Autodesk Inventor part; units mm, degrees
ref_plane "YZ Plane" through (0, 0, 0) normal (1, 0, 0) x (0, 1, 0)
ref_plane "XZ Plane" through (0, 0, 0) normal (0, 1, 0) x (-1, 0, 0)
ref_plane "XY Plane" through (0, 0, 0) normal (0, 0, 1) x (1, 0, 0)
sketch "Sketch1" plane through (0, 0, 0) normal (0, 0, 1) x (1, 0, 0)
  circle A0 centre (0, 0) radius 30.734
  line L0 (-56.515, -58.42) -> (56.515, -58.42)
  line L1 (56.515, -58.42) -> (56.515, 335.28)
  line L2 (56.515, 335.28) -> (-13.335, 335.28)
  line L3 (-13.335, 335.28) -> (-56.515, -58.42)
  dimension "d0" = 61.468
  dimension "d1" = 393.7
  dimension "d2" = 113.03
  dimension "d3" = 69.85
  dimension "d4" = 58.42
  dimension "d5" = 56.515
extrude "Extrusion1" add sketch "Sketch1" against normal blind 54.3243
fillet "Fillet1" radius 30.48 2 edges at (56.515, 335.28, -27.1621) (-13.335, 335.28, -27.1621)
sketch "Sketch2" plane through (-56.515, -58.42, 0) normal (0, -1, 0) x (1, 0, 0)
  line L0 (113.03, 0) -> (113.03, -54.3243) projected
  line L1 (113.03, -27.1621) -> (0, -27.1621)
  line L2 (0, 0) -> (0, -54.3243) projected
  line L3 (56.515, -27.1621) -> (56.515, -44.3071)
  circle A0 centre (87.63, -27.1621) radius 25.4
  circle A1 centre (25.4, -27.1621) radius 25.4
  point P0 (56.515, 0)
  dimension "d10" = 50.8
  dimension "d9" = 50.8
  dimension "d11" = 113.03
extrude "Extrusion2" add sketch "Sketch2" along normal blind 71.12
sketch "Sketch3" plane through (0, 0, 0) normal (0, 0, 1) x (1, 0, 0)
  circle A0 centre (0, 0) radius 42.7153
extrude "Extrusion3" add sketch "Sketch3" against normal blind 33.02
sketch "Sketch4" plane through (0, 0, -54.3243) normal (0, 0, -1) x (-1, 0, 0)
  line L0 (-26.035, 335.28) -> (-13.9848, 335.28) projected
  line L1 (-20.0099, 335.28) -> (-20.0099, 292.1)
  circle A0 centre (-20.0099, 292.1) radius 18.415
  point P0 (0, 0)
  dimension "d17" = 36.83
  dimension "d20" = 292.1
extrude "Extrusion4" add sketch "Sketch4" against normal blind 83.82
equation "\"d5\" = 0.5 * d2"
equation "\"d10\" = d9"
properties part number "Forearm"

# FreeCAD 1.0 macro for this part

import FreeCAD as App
import Part
import Sketcher
from FreeCAD import Vector
Q = App.Units.Quantity


def edges_at(feature, points):
    """Names of the edges that pass closest to the given points."""
    edges = feature.Shape.Edges
    near = lambda p: min(range(len(edges)), key=lambda i: edges[i].distToShape(Part.Vertex(*p))[0])
    return sorted({f"Edge{near(p) + 1}" for p in points})

doc = App.newDocument("Part")
params = doc.addObject("Spreadsheet::Sheet", "Params")
for row, (alias, value) in enumerate([
    ("sketch1_diameter", "2.42 in"),
    ("sketch1_height", "15.5 in"),
    ("sketch1_width", "4.45 in"),
    ("sketch1_width2", "2.75 in"),
    ("pad1_length", "54.3243 mm"),
    ("fillet_radius", "1.2 in"),
    ("sketch2_diameter", "2 in"),
    ("pad2_length", "2.8 in"),
    ("pad3_length", "1.3 in"),
    ("sketch4_diameter", "1.45 in"),
    ("pad4_length", "3.3 in"),
], start=1):
    params.set(f"A{row}", alias)
    params.set(f"B{row}", "=" + value)
    params.setAlias(f"B{row}", alias)

body = doc.addObject("PartDesign::Body", "Body")

# Sketch on XY plane
sketch1 = doc.addObject("Sketcher::SketchObject", "Sketch")
body.addObject(sketch1)
sketch1.AttachmentSupport = (doc.XY_Plane, [""])
sketch1.MapMode = "FlatFace"
sketch1.addGeometry(Part.LineSegment(Vector(-13.335, 335.28, 0), Vector(-56.515, -58.42, 0)), False)
sketch1.addGeometry(Part.LineSegment(Vector(-56.515, -58.42, 0), Vector(56.515, -58.42, 0)), False)
sketch1.addGeometry(Part.LineSegment(Vector(56.515, -58.42, 0), Vector(56.515, 335.28, 0)), False)
sketch1.addGeometry(Part.LineSegment(Vector(56.515, 335.28, 0), Vector(-13.335, 335.28, 0)), False)
sketch1.addGeometry(Part.Circle(Vector(0, 0, 0), Vector(0, 0, 1), 30.734), False)
sketch1.addConstraint(Sketcher.Constraint("Coincident", 0, 2, 1, 1))
sketch1.addConstraint(Sketcher.Constraint("Coincident", 1, 2, 2, 1))
sketch1.addConstraint(Sketcher.Constraint("Coincident", 2, 2, 3, 1))
sketch1.addConstraint(Sketcher.Constraint("Coincident", 3, 2, 0, 1))
sketch1.addConstraint(Sketcher.Constraint("Horizontal", 1))
sketch1.addConstraint(Sketcher.Constraint("Vertical", 2))
sketch1.addConstraint(Sketcher.Constraint("Horizontal", 3))
sketch1.addConstraint(Sketcher.Constraint("Coincident", 4, 3, -1, 1))
sketch1.addConstraint(Sketcher.Constraint("Diameter", 4, Q("2.42 in")))
sketch1.addConstraint(Sketcher.Constraint("DistanceY", 2, 1, 2, 2, Q("15.5 in")))
sketch1.addConstraint(Sketcher.Constraint("DistanceX", 1, 1, 1, 2, Q("4.45 in")))
sketch1.addConstraint(Sketcher.Constraint("DistanceX", 3, 2, 3, 1, Q("2.75 in")))
sketch1.addConstraint(Sketcher.Constraint("DistanceY", 0, 2, -1, 1, Q("2.3 in")))
sketch1.addConstraint(Sketcher.Constraint("DistanceX", 0, 2, -1, 1, Q("2.225 in")))
sketch1.setExpression("Constraints[8]", "Params.sketch1_diameter")
sketch1.setExpression("Constraints[9]", "Params.sketch1_height")
sketch1.setExpression("Constraints[10]", "Params.sketch1_width")
sketch1.setExpression("Constraints[11]", "Params.sketch1_width2")
pad1 = doc.addObject("PartDesign::Pad", "Pad")
body.addObject(pad1)
pad1.Profile = sketch1
pad1.setExpression("Length", "Params.pad1_length")
pad1.Reversed = True
doc.recompute()

fillet = doc.addObject("PartDesign::Fillet", "Fillet")
body.addObject(fillet)
fillet.Base = (pad1, edges_at(pad1, [(56.515, 335.28, -27.162), (-13.335, 335.28, -27.162)]))
fillet.setExpression("Radius", "Params.fillet_radius")

# Sketch on XZ plane
sketch2 = doc.addObject("Sketcher::SketchObject", "Sketch001")
body.addObject(sketch2)
sketch2.AttachmentSupport = (doc.XZ_Plane, [""])
sketch2.MapMode = "FlatFace"
sketch2.AttachmentOffset = App.Placement(Vector(0, 0, 2.3 * 25.4), App.Rotation())
sketch2.addGeometry(Part.Circle(Vector(-31.115, -27.1621, 0), Vector(0, 0, 1), 25.4), False)
sketch2.addGeometry(Part.Circle(Vector(31.115, -27.1621, 0), Vector(0, 0, 1), 25.4), False)
sketch2.addConstraint(Sketcher.Constraint("Equal", 0, 1))
sketch2.addConstraint(Sketcher.Constraint("Symmetric", 0, 3, 1, 3, -2))
sketch2.addConstraint(Sketcher.Constraint("Diameter", 0, Q("2 in")))
sketch2.addConstraint(Sketcher.Constraint("DistanceX", 0, 3, 1, 3, Q("2.45 in")))
sketch2.addConstraint(Sketcher.Constraint("DistanceY", 0, 3, -1, 1, Q("27.162 mm")))
sketch2.setExpression("Constraints[2]", "Params.sketch2_diameter")
pad2 = doc.addObject("PartDesign::Pad", "Pad001")
body.addObject(pad2)
pad2.Profile = sketch2
pad2.setExpression("Length", "Params.pad2_length")

# Sketch on XY plane
sketch3 = doc.addObject("Sketcher::SketchObject", "Sketch002")
body.addObject(sketch3)
sketch3.AttachmentSupport = (doc.XY_Plane, [""])
sketch3.MapMode = "FlatFace"
sketch3.addGeometry(Part.Circle(Vector(0, 0, 0), Vector(0, 0, 1), 42.7153), False)
sketch3.addConstraint(Sketcher.Constraint("Coincident", 0, 3, -1, 1))
sketch3.addConstraint(Sketcher.Constraint("Diameter", 0, Q("3.3634 in")))
pad3 = doc.addObject("PartDesign::Pad", "Pad002")
body.addObject(pad3)
pad3.Profile = sketch3
pad3.setExpression("Length", "Params.pad3_length")
pad3.Reversed = True

# Sketch on XY plane
sketch4 = doc.addObject("Sketcher::SketchObject", "Sketch003")
body.addObject(sketch4)
sketch4.AttachmentSupport = (doc.XY_Plane, [""])
sketch4.MapMode = "FlatFace"
sketch4.AttachmentOffset = App.Placement(Vector(0, 0, -54.3243), App.Rotation())
sketch4.addGeometry(Part.Circle(Vector(20.0099, 292.1, 0), Vector(0, 0, 1), 18.415), False)
sketch4.addConstraint(Sketcher.Constraint("Diameter", 0, Q("1.45 in")))
sketch4.addConstraint(Sketcher.Constraint("DistanceY", -1, 1, 0, 3, Q("11.5 in")))
sketch4.addConstraint(Sketcher.Constraint("DistanceX", -1, 1, 0, 3, Q("0.7878 in")))
sketch4.setExpression("Constraints[0]", "Params.sketch4_diameter")
pad4 = doc.addObject("PartDesign::Pad", "Pad003")
body.addObject(pad4)
pad4.Profile = sketch4
pad4.setExpression("Length", "Params.pad4_length")

doc.recompute()
